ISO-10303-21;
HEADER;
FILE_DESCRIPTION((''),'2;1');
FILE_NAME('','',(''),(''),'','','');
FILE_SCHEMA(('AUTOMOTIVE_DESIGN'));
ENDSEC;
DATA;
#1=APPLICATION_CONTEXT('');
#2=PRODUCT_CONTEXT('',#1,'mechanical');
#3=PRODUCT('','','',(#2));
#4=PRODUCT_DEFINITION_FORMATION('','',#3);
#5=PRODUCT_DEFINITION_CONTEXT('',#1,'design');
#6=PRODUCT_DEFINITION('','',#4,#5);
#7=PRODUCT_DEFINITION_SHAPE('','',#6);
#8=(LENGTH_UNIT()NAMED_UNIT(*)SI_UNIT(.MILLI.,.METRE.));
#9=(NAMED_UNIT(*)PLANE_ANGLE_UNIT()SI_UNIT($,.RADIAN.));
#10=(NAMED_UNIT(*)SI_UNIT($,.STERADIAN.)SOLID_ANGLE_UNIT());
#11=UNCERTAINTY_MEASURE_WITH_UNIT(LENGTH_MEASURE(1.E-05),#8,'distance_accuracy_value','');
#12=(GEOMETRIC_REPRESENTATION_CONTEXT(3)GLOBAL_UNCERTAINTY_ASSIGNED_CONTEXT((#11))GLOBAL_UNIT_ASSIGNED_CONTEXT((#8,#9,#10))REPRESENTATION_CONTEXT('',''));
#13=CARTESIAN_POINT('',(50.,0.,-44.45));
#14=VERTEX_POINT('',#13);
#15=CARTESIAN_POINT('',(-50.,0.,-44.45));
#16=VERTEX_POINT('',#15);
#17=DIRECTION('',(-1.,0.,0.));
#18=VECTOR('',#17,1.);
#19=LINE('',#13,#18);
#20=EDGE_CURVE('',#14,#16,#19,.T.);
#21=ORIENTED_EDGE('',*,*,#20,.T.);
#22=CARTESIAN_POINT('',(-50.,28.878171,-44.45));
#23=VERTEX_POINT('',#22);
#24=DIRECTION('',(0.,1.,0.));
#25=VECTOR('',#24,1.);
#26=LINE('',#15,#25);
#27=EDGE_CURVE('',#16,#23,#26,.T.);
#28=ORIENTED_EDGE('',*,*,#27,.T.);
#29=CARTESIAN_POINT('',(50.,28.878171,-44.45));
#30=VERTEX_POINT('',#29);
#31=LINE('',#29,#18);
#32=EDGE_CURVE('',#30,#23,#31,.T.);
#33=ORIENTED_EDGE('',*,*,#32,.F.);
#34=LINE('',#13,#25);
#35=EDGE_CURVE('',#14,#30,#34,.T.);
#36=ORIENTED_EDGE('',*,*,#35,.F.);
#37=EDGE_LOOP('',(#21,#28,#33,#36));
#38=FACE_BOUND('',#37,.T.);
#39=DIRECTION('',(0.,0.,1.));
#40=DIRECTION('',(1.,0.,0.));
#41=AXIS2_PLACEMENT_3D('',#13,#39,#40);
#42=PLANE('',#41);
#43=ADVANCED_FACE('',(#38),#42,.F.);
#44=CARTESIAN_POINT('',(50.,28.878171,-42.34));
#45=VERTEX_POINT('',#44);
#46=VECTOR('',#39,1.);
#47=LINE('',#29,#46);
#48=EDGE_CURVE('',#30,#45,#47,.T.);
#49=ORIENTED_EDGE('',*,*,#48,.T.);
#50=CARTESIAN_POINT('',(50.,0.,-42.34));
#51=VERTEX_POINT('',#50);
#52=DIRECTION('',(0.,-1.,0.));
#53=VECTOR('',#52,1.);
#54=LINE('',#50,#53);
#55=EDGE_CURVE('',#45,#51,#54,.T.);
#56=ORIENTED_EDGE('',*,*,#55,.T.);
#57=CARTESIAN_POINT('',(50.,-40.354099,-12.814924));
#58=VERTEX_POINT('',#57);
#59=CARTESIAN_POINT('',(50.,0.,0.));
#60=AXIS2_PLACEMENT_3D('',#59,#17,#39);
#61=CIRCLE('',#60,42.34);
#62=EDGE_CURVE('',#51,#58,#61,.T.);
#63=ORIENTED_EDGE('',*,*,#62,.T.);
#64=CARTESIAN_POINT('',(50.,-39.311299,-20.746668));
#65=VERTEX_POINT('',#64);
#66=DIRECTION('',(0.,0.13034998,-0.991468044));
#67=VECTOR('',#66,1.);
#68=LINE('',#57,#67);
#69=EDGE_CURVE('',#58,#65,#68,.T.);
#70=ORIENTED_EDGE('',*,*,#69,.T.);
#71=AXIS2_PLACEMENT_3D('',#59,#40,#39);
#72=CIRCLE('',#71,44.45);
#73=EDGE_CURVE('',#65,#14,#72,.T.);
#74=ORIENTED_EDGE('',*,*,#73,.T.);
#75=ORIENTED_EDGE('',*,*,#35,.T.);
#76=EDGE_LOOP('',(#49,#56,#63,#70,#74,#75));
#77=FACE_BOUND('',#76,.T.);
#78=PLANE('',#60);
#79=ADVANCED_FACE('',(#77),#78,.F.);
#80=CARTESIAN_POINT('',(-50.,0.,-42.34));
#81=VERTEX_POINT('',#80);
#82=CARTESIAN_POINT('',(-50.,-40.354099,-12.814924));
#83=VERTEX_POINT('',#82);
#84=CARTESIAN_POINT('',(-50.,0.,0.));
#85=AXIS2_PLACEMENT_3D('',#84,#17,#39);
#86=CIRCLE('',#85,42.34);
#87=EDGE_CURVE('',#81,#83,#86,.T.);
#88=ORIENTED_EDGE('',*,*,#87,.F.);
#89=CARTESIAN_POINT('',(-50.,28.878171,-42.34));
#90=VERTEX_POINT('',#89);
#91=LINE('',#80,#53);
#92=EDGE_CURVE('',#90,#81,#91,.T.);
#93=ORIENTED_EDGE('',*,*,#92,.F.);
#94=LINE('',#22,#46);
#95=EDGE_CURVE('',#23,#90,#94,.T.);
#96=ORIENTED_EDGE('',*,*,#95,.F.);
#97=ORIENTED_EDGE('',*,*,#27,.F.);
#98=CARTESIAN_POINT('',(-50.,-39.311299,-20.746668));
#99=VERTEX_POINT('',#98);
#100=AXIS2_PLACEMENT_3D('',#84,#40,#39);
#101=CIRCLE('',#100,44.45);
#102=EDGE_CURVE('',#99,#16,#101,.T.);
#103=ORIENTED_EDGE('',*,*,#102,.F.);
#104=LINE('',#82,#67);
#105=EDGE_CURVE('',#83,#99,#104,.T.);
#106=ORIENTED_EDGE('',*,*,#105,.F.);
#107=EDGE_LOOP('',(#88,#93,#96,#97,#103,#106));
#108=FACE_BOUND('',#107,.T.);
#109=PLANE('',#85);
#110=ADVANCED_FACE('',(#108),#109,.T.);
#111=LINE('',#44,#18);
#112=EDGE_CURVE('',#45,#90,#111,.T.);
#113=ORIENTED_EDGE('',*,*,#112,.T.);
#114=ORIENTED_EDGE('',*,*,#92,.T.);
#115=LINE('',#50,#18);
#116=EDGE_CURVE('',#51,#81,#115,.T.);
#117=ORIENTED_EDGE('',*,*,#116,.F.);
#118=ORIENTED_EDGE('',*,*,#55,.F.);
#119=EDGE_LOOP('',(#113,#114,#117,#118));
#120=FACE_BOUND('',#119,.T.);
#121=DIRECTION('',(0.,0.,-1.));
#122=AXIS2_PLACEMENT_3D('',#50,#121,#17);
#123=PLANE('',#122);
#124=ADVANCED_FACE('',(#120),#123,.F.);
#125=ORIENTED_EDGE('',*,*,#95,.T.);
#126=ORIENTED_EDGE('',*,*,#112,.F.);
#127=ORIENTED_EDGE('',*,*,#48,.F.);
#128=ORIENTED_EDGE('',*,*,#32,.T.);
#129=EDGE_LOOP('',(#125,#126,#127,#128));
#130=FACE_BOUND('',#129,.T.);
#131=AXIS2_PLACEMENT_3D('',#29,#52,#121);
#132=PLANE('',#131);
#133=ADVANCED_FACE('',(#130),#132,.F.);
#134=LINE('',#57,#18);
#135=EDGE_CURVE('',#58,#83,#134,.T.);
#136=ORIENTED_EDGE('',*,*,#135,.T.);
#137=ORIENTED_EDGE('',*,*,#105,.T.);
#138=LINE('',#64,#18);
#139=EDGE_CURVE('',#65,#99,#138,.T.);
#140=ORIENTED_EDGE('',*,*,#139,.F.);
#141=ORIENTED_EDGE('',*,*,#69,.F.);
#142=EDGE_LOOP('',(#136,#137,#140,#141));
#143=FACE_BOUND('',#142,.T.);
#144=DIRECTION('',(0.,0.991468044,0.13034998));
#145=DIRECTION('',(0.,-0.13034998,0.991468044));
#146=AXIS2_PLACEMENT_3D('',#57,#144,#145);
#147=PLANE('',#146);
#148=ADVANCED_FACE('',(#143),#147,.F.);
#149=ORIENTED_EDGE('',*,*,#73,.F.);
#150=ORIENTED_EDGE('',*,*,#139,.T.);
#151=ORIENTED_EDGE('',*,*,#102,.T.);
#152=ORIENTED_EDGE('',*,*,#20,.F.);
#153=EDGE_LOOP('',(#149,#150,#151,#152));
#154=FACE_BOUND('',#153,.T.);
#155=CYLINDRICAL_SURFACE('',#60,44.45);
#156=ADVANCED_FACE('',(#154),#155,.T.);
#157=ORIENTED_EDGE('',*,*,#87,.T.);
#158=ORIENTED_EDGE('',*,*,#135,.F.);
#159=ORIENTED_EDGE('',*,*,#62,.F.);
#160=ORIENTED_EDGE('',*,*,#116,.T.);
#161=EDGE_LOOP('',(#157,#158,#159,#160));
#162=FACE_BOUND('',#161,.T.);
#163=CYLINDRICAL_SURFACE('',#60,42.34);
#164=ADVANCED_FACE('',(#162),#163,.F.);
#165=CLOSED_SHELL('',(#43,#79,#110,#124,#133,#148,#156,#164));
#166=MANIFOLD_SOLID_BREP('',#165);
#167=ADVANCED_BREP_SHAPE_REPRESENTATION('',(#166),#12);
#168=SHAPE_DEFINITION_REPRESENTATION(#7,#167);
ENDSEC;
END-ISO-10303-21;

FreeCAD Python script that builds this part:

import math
import FreeCAD as App
import Part
import Sketcher
from FreeCAD import Vector

doc = App.newDocument("Part")
body = doc.addObject("PartDesign::Body", "Body")

sketch1 = doc.addObject("Sketcher::SketchObject", "Sketch")
body.addObject(sketch1)
sketch1.AttachmentSupport = (doc.YZ_Plane, [""])
sketch1.MapMode = "FlatFace"
sketch1.addGeometry([
    Part.LineSegment(Vector(-40.354099, -12.814924, 0), Vector(-39.311299, -20.746668, 0)),
    Part.ArcOfCircle(Part.Circle(Vector(0, 0, 0), Vector(0, 0, 1), 44.45), math.radians(-152.177001), math.radians(-90)),
    Part.LineSegment(Vector(0, -44.45, 0), Vector(28.878171, -44.45, 0)),
    Part.LineSegment(Vector(28.878171, -44.45, 0), Vector(28.878171, -42.34, 0)),
    Part.LineSegment(Vector(28.878171, -42.34, 0), Vector(0, -42.34, 0)),
    Part.ArcOfCircle(Part.Circle(Vector(0, 0, 0), Vector(0, 0, 1), 42.34), math.radians(-162.382136), math.radians(-90)),
], False)
sketch1.addConstraint([
    Sketcher.Constraint("Coincident", 0, 2, 1, 1),
    Sketcher.Constraint("Tangent", 1, 2, 2, 1),
    Sketcher.Constraint("Coincident", 2, 2, 3, 1),
    Sketcher.Constraint("Coincident", 3, 2, 4, 1),
    Sketcher.Constraint("Tangent", 4, 2, 5, 2),
    Sketcher.Constraint("Coincident", 5, 1, 0, 1),
    Sketcher.Constraint("Horizontal", 2),
    Sketcher.Constraint("Vertical", 3),
    Sketcher.Constraint("Horizontal", 4),
    Sketcher.Constraint("Coincident", 1, 3, -1, 1),
    Sketcher.Constraint("Coincident", 5, 3, -1, 1),
    Sketcher.Constraint("Radius", 1, 44.45),
    Sketcher.Constraint("Radius", 5, 42.34),
    Sketcher.Constraint("Distance", 0, 8.0),
    Sketcher.Constraint("DistanceX", 2, 1, 2, 2, 28.878171),
    Sketcher.Constraint("DistanceX", 0, 2, -1, 1, 39.311299),
])
pad1 = doc.addObject("PartDesign::Pad", "Pad")
body.addObject(pad1)
pad1.Profile = sketch1
pad1.Length = 100
pad1.Midplane = True

doc.recompute()
